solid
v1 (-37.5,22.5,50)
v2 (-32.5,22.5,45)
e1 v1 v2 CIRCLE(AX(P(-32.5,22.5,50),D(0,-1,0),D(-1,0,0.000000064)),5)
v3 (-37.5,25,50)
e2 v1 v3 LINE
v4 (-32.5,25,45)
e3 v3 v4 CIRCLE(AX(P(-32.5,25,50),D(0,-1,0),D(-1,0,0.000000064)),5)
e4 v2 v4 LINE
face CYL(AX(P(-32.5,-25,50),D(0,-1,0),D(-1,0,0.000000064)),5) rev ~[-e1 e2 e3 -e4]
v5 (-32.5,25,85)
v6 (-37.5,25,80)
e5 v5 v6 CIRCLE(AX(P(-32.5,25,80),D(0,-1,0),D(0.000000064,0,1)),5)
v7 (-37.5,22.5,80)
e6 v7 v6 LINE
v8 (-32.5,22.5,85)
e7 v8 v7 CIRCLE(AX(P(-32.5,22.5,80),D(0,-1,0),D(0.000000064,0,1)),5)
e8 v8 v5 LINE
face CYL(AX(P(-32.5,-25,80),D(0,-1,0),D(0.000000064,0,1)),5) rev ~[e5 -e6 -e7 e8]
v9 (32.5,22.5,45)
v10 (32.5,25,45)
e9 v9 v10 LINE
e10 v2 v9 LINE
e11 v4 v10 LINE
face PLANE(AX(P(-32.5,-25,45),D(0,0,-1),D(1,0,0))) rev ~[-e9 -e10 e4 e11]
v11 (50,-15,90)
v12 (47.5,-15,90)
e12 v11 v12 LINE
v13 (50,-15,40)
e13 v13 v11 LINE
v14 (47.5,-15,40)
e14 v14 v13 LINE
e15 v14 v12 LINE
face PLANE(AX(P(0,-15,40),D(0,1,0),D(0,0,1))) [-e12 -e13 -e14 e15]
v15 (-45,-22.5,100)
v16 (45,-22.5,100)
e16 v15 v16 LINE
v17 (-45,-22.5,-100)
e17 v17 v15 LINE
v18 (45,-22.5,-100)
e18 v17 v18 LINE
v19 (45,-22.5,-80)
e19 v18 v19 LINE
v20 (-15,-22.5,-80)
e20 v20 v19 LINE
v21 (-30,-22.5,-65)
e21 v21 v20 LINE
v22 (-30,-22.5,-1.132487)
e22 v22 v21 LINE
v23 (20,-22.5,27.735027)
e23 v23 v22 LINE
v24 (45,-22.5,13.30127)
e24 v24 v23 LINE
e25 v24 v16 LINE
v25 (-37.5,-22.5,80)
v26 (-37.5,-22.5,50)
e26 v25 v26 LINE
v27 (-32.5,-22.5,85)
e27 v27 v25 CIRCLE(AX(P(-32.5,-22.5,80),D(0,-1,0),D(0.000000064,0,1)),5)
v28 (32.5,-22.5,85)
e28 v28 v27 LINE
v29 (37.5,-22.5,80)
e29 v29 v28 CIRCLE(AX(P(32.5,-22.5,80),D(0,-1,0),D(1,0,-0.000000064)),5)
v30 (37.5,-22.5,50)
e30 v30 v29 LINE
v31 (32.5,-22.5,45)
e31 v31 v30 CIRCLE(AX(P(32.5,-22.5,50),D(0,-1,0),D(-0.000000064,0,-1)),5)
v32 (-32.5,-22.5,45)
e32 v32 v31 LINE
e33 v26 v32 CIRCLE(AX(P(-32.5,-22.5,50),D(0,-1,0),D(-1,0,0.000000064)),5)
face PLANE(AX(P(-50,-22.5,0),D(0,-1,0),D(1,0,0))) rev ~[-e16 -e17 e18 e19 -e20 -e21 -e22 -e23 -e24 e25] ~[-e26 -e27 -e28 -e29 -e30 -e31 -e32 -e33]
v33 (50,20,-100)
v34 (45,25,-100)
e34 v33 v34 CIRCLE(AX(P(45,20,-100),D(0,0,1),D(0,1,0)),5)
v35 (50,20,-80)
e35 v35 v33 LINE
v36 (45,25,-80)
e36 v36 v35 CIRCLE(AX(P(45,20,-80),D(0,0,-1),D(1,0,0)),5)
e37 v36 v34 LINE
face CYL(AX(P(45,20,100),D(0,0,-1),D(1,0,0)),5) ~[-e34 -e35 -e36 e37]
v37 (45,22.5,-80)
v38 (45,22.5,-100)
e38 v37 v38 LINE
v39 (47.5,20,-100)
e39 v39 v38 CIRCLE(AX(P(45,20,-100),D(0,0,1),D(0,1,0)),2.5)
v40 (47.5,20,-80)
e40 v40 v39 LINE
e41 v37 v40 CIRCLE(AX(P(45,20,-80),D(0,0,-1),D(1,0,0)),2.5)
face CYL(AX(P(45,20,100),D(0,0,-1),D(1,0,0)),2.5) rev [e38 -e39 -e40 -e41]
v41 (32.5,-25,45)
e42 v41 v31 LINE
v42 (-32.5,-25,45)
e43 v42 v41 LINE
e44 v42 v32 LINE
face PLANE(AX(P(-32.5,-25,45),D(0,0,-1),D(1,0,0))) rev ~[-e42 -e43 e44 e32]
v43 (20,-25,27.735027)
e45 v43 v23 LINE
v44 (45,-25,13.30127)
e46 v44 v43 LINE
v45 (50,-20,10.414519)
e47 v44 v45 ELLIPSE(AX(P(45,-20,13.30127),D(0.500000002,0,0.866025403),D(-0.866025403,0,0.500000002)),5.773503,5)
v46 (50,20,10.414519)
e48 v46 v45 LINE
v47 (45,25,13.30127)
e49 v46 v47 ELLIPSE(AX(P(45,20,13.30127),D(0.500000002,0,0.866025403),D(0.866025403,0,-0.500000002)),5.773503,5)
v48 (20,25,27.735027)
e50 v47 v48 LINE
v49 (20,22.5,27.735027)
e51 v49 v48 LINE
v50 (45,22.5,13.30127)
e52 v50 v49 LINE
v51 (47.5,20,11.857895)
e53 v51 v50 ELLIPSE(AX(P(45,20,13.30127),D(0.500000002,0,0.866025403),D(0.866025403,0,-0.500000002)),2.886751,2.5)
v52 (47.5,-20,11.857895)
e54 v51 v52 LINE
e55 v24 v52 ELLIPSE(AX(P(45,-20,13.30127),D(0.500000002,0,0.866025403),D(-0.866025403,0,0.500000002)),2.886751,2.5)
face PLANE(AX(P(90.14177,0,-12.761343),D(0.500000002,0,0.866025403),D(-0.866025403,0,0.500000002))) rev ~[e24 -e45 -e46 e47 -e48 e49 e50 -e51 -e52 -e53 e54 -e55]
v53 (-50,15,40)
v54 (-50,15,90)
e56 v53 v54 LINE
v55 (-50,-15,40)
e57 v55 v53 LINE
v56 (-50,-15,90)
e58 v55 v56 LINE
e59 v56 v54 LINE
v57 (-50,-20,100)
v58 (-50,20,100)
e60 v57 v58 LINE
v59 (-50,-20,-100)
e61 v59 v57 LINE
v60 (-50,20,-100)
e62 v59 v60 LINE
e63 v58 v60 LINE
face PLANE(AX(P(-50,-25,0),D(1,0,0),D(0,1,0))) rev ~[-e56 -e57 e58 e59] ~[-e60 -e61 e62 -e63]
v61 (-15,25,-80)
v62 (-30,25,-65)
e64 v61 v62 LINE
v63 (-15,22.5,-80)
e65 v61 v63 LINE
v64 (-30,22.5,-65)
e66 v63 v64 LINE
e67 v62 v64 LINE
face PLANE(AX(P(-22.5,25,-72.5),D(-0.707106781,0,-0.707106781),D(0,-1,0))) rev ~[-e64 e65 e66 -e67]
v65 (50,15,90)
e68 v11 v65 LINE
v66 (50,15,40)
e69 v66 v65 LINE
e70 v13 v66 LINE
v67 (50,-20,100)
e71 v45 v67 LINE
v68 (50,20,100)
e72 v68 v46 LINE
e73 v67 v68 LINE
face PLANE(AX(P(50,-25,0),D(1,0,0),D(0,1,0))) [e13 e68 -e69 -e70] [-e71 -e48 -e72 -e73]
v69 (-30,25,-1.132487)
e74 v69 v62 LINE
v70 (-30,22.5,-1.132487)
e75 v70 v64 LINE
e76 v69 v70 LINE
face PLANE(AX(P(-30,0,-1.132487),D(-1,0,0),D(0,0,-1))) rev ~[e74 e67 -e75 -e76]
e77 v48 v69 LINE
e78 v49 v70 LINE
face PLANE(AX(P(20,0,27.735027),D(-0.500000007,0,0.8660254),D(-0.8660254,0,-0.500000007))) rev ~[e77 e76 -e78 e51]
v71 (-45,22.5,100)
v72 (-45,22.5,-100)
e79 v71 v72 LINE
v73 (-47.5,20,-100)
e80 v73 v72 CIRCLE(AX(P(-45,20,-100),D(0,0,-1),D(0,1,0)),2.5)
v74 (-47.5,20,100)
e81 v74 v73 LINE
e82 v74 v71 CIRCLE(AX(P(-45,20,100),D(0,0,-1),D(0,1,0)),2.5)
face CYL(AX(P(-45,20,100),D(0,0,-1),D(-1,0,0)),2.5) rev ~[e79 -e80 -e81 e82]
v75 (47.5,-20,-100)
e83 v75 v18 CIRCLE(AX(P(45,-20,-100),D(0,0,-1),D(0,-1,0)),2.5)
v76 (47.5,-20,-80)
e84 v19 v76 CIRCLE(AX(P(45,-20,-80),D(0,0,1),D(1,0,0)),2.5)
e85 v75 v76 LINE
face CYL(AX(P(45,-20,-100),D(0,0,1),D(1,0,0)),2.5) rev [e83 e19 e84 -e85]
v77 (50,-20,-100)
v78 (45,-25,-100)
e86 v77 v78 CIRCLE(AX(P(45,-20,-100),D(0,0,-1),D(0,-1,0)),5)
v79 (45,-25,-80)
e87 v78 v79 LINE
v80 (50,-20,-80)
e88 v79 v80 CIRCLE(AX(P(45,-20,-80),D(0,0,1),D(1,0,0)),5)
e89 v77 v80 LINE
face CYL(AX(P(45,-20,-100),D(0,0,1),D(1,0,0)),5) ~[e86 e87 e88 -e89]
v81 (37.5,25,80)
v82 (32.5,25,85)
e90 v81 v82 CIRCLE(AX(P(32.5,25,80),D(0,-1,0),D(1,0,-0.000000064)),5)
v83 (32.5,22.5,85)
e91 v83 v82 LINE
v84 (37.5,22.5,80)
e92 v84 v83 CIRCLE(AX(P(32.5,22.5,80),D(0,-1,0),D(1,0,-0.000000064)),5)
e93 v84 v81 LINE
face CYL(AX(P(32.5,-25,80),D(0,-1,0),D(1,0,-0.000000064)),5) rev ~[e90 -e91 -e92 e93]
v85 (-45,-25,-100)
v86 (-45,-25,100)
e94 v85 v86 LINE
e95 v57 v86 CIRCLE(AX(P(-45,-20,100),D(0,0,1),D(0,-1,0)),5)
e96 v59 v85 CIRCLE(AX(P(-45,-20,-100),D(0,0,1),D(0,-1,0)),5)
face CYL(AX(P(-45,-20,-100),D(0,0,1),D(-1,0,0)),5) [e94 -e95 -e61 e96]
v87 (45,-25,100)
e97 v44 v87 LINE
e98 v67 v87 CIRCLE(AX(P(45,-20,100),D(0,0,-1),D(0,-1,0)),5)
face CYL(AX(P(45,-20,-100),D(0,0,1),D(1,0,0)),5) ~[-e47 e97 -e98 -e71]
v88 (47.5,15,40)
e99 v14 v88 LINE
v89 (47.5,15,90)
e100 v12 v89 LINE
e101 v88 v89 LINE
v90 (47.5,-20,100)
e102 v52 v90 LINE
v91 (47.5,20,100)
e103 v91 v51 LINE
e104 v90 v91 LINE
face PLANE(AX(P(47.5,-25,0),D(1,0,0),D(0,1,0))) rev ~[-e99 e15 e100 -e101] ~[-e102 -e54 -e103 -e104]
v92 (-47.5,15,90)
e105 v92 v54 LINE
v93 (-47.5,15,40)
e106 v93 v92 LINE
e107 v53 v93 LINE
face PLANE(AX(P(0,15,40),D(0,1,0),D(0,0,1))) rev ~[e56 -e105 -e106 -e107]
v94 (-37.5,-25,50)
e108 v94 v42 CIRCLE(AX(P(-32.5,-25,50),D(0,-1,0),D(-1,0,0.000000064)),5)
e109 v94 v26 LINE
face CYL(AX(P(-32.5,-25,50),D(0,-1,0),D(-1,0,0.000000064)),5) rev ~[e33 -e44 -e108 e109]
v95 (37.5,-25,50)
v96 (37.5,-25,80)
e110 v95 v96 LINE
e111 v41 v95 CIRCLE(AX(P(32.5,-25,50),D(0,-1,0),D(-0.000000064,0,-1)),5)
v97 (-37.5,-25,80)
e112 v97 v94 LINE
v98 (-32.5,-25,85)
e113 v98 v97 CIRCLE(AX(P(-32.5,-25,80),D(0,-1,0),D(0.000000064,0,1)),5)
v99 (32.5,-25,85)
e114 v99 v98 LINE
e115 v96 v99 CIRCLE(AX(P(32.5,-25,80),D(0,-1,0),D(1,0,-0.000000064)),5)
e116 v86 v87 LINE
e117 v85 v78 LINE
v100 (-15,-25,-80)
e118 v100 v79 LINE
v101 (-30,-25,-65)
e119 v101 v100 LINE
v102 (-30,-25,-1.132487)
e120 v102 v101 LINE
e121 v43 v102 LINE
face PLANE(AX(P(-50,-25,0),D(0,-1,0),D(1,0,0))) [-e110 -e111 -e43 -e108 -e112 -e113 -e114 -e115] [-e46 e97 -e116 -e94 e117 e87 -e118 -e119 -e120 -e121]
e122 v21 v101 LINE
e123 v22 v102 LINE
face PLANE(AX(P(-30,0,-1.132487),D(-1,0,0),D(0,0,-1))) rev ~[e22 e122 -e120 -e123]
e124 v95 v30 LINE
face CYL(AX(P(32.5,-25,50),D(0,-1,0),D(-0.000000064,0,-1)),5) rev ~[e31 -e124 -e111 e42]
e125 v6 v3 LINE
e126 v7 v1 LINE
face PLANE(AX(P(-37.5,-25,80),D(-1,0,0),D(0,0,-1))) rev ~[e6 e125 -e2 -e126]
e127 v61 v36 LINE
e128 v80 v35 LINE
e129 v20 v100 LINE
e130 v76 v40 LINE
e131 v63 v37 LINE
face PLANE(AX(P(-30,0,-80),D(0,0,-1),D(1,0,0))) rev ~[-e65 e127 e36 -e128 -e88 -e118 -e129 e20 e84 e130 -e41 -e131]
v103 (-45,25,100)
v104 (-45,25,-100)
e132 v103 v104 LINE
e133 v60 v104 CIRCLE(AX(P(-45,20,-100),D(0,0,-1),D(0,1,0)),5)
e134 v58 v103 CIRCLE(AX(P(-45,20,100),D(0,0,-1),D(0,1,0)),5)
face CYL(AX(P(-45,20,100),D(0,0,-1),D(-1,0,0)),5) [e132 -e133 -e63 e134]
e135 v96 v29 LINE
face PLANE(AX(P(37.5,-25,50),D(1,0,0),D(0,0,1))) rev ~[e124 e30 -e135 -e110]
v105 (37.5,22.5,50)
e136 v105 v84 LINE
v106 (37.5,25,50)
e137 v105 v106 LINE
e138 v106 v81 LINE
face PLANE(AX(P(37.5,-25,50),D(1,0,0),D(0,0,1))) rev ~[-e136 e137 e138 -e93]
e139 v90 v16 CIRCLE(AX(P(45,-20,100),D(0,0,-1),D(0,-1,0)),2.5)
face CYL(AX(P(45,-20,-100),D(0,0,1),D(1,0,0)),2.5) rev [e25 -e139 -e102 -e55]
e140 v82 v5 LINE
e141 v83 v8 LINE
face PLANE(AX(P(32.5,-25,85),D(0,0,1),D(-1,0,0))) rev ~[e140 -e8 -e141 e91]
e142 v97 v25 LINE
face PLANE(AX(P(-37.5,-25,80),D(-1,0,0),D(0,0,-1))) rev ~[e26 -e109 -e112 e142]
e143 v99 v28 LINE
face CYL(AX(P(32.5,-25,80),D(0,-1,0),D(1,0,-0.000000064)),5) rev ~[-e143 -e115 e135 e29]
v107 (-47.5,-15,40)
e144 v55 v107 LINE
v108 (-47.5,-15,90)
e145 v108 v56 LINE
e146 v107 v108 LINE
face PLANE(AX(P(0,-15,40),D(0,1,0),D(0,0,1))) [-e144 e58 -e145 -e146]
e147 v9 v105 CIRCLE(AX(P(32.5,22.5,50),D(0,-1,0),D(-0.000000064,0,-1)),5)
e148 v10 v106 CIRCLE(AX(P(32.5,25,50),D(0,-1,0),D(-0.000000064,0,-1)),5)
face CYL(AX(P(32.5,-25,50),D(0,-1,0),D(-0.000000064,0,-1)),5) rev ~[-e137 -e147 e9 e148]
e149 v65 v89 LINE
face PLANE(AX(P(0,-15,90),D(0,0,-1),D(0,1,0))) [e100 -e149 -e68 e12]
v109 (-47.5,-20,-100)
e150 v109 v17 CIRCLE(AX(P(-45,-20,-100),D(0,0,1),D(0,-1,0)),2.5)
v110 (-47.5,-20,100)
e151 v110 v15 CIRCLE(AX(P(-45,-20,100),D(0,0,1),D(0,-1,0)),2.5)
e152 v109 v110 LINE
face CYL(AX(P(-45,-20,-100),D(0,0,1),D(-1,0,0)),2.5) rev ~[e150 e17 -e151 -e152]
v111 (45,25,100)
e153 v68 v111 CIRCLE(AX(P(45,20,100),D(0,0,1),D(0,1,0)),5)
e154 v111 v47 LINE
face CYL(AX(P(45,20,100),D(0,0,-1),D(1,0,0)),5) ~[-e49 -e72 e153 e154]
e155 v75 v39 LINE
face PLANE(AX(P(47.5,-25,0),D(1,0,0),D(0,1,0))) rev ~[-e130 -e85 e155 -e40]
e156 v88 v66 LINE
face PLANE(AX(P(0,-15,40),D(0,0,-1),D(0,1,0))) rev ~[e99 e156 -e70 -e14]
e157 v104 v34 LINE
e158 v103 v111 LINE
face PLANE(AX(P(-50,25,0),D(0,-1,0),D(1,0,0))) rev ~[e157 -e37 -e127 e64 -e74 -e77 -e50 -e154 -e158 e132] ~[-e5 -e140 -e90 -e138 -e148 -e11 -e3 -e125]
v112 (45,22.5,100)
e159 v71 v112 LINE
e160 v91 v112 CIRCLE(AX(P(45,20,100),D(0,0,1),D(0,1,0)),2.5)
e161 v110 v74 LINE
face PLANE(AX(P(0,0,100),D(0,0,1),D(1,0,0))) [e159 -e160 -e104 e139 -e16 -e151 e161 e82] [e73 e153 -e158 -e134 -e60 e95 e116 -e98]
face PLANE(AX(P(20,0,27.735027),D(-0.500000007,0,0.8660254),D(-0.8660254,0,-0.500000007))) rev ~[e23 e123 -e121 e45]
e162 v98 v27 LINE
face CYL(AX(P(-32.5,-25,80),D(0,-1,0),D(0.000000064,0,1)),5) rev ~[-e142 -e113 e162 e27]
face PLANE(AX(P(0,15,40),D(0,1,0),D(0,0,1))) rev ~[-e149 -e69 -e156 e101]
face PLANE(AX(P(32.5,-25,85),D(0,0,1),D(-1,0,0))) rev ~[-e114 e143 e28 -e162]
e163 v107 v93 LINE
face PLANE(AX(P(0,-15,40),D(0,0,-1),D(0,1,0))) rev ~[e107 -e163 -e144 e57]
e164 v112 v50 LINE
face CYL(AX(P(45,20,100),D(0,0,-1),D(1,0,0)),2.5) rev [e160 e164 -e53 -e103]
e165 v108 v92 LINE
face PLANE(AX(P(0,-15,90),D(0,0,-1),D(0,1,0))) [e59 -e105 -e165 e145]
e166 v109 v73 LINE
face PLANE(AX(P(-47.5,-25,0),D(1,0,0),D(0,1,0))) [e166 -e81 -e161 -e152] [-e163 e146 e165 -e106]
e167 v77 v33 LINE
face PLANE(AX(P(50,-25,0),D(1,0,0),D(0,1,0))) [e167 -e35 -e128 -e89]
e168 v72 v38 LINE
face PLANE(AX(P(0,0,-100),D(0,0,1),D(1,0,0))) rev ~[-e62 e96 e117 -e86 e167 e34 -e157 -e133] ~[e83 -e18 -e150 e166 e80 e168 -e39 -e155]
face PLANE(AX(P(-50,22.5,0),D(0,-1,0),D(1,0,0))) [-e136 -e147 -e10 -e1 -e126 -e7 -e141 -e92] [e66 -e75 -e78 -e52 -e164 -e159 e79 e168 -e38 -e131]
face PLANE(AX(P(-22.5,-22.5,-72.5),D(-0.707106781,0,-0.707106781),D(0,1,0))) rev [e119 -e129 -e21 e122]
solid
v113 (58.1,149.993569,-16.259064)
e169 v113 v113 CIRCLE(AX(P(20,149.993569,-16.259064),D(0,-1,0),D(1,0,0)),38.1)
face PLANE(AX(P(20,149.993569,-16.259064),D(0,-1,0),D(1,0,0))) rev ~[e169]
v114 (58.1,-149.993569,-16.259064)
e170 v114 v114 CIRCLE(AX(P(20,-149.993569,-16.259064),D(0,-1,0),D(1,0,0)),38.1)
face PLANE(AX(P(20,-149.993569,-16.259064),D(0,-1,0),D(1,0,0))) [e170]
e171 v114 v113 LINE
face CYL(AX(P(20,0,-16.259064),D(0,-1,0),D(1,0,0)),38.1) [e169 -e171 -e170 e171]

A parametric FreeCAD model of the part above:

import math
import FreeCAD as App
import Part
import Sketcher

V = App.Vector
Q = App.Units.Quantity


def edges_at(feature, points):
    """Names of the edges that pass closest to the given points."""
    edges = feature.Shape.Edges
    near = lambda p: min(range(len(edges)), key=lambda i: edges[i].distToShape(Part.Vertex(*p))[0])
    return sorted({f"Edge{near(p) + 1}" for p in points})


def faces_at(feature, points):
    """Names of the faces that lie closest to the given points."""
    faces = feature.Shape.Faces
    near = lambda p: min(range(len(faces)), key=lambda i: faces[i].distToShape(Part.Vertex(*p))[0])
    return sorted({f"Face{near(p) + 1}" for p in points})

doc = App.newDocument("Part")
body = doc.addObject("PartDesign::Body", "Body")

sketch1 = body.newObject("Sketcher::SketchObject", "Sketch")
sketch1.AttachmentSupport = (doc.getObject("XY_Plane"), [""])
sketch1.MapMode = "FlatFace"
sketch1.addGeometry(Part.LineSegment(V(-50, 25, 0), V(-50, -25, 0)), False)
sketch1.addGeometry(Part.LineSegment(V(-50, -25, 0), V(50, -25, 0)), False)
sketch1.addGeometry(Part.LineSegment(V(50, -25, 0), V(50, 25, 0)), False)
sketch1.addGeometry(Part.LineSegment(V(50, 25, 0), V(-50, 25, 0)), False)
sketch1.addConstraint(Sketcher.Constraint("Coincident", 0, 2, 1, 1))
sketch1.addConstraint(Sketcher.Constraint("Coincident", 1, 2, 2, 1))
sketch1.addConstraint(Sketcher.Constraint("Coincident", 2, 2, 3, 1))
sketch1.addConstraint(Sketcher.Constraint("Coincident", 3, 2, 0, 1))
sketch1.addConstraint(Sketcher.Constraint("Vertical", 0))
sketch1.addConstraint(Sketcher.Constraint("Horizontal", 1))
sketch1.addConstraint(Sketcher.Constraint("Vertical", 2))
sketch1.addConstraint(Sketcher.Constraint("Horizontal", 3))
sketch1.addConstraint(Sketcher.Constraint("Symmetric", 0, 2, 2, 2, -1, 1))
sketch1.addConstraint(Sketcher.Constraint("DistanceX", 1, 1, 1, 2, 100.0))
sketch1.addConstraint(Sketcher.Constraint("DistanceY", 0, 2, 0, 1, 50.0))
pad1 = body.newObject("PartDesign::Pad", "Pad")
pad1.Profile = sketch1
pad1.Length = 200
pad1.Midplane = True
doc.recompute()

fillet = body.newObject("PartDesign::Fillet", "Fillet")
fillet.Base = (pad1, edges_at(pad1, [
    (-50, -25, 0),
    (-50, 25, 0),
    (50, -25, 0),
    (50, 25, 0),
]))
fillet.Radius = 5
doc.recompute()

thickness = body.newObject("PartDesign::Thickness", "Thickness")
thickness.Base = (fillet, faces_at(fillet, [(0, 0, 100), (0, 0, -100)]))
thickness.Value = 2.5
thickness.Reversed = True
thickness.Join = "Arc"

sketch2 = body.newObject("Sketcher::SketchObject", "Sketch001")
sketch2.AttachmentSupport = (doc.getObject("YZ_Plane"), [""])
sketch2.MapMode = "FlatFace"
sketch2.addGeometry(Part.LineSegment(V(-15, 90, 0), V(-15, 40, 0)), False)
sketch2.addGeometry(Part.LineSegment(V(-15, 40, 0), V(15, 40, 0)), False)
sketch2.addGeometry(Part.LineSegment(V(15, 40, 0), V(15, 90, 0)), False)
sketch2.addGeometry(Part.LineSegment(V(15, 90, 0), V(-15, 90, 0)), False)
sketch2.addConstraint(Sketcher.Constraint("Coincident", 0, 2, 1, 1))
sketch2.addConstraint(Sketcher.Constraint("Coincident", 1, 2, 2, 1))
sketch2.addConstraint(Sketcher.Constraint("Coincident", 2, 2, 3, 1))
sketch2.addConstraint(Sketcher.Constraint("Coincident", 3, 2, 0, 1))
sketch2.addConstraint(Sketcher.Constraint("Vertical", 0))
sketch2.addConstraint(Sketcher.Constraint("Horizontal", 1))
sketch2.addConstraint(Sketcher.Constraint("Vertical", 2))
sketch2.addConstraint(Sketcher.Constraint("Horizontal", 3))
sketch2.addConstraint(Sketcher.Constraint("DistanceX", 1, 1, 1, 2, 30.0))
sketch2.addConstraint(Sketcher.Constraint("DistanceY", 0, 2, 0, 1, 50.0))
sketch2.addConstraint(Sketcher.Constraint("DistanceX", 0, 2, -1, 1, 15.0))
sketch2.addConstraint(Sketcher.Constraint("DistanceY", -1, 1, 0, 2, 40.0))
pocket1 = body.newObject("PartDesign::Pocket", "Pocket")
pocket1.Profile = sketch2
pocket1.Length = 220
pocket1.Midplane = True

sketch3 = body.newObject("Sketcher::SketchObject", "Sketch002")
sketch3.AttachmentSupport = (doc.getObject("XZ_Plane"), [""])
sketch3.MapMode = "FlatFace"
sketch3.addGeometry(Part.LineSegment(V(20, 28, 0), V(-30, -1, 0)), False)
sketch3.addGeometry(Part.LineSegment(V(-30, -1, 0), V(-30, -80, 0)), False)
sketch3.addGeometry(Part.LineSegment(V(-30, -80, 0), V(90, -80, 0)), False)
sketch3.addGeometry(Part.LineSegment(V(90, -80, 0), V(90, -13, 0)), False)
sketch3.addGeometry(Part.LineSegment(V(90, -13, 0), V(20, 28, 0)), False)
sketch3.addConstraint(Sketcher.Constraint("Coincident", 0, 2, 1, 1))
sketch3.addConstraint(Sketcher.Constraint("Coincident", 1, 2, 2, 1))
sketch3.addConstraint(Sketcher.Constraint("Coincident", 2, 2, 3, 1))
sketch3.addConstraint(Sketcher.Constraint("Coincident", 3, 2, 4, 1))
sketch3.addConstraint(Sketcher.Constraint("Coincident", 4, 2, 0, 1))
sketch3.addConstraint(Sketcher.Constraint("Vertical", 1))
sketch3.addConstraint(Sketcher.Constraint("Horizontal", 2))
sketch3.addConstraint(Sketcher.Constraint("Vertical", 3))
sketch3.addConstraint(Sketcher.Constraint("Angle", 0, Q("-150 deg")))
sketch3.addConstraint(Sketcher.Constraint("Angle", 4, Q("150 deg")))
sketch3.addConstraint(Sketcher.Constraint("DistanceX", 0, 2, -1, 1, 30.0))
sketch3.addConstraint(Sketcher.Constraint("DistanceY", 1, 2, -1, 1, 80.0))
sketch3.addConstraint(Sketcher.Constraint("DistanceX", -1, 1, 4, 2, 20.0))
sketch3.addConstraint(Sketcher.Constraint("DistanceX", 2, 1, 2, 2, 120.14177))
sketch3.addConstraint(Sketcher.Constraint("DistanceY", 1, 2, 1, 1, 78.867513))
pocket2 = body.newObject("PartDesign::Pocket", "Pocket001")
pocket2.Profile = sketch3
pocket2.Length = 86.60339
pocket2.Midplane = True
doc.recompute()

chamfer = body.newObject("PartDesign::Chamfer", "Chamfer")
chamfer.Base = (pocket2, edges_at(pocket2, [(-30, 23.75, -80), (-30, -23.75, -80)]))
chamfer.Size = 15

sketch4 = body.newObject("Sketcher::SketchObject", "Sketch003")
sketch4.AttachmentSupport = (doc.getObject("XZ_Plane"), [""])
sketch4.MapMode = "FlatFace"
sketch4.AttachmentOffset = App.Placement(V(0, 0, 25), App.Rotation())
sketch4.addGeometry(Part.ArcOfCircle(Part.Circle(V(32.5, 80, 0), V(0, 0, 1), 5), math.radians(0), math.radians(90)), False)
sketch4.addGeometry(Part.LineSegment(V(32.5, 85, 0), V(-32.5, 85, 0)), False)
sketch4.addGeometry(Part.ArcOfCircle(Part.Circle(V(-32.5, 80, 0), V(0, 0, 1), 5), math.radians(90), math.radians(180)), False)
sketch4.addGeometry(Part.LineSegment(V(-37.5, 80, 0), V(-37.5, 50, 0)), False)
sketch4.addGeometry(Part.ArcOfCircle(Part.Circle(V(-32.5, 50, 0), V(0, 0, 1), 5), math.radians(180), math.radians(270)), False)
sketch4.addGeometry(Part.LineSegment(V(-32.5, 45, 0), V(32.5, 45, 0)), False)
sketch4.addGeometry(Part.ArcOfCircle(Part.Circle(V(32.5, 50, 0), V(0, 0, 1), 5), math.radians(-90), math.radians(0)), False)
sketch4.addGeometry(Part.LineSegment(V(37.5, 50, 0), V(37.5, 80, 0)), False)
sketch4.addConstraint(Sketcher.Constraint("Tangent", 0, 2, 1, 1))
sketch4.addConstraint(Sketcher.Constraint("Tangent", 1, 2, 2, 1))
sketch4.addConstraint(Sketcher.Constraint("Tangent", 2, 2, 3, 1))
sketch4.addConstraint(Sketcher.Constraint("Tangent", 3, 2, 4, 1))
sketch4.addConstraint(Sketcher.Constraint("Tangent", 4, 2, 5, 1))
sketch4.addConstraint(Sketcher.Constraint("Tangent", 5, 2, 6, 1))
sketch4.addConstraint(Sketcher.Constraint("Tangent", 6, 2, 7, 1))
sketch4.addConstraint(Sketcher.Constraint("Tangent", 7, 2, 0, 1))
sketch4.addConstraint(Sketcher.Constraint("Horizontal", 1))
sketch4.addConstraint(Sketcher.Constraint("Vertical", 3))
sketch4.addConstraint(Sketcher.Constraint("Horizontal", 5))
sketch4.addConstraint(Sketcher.Constraint("Vertical", 7))
sketch4.addConstraint(Sketcher.Constraint("Equal", 0, 2))
sketch4.addConstraint(Sketcher.Constraint("Equal", 2, 4))
sketch4.addConstraint(Sketcher.Constraint("Equal", 4, 6))
sketch4.addConstraint(Sketcher.Constraint("Radius", 0, 5.0))
sketch4.addConstraint(Sketcher.Constraint("DistanceX", 1, 2, 1, 1, 65.0))
sketch4.addConstraint(Sketcher.Constraint("DistanceY", 3, 2, 3, 1, 30.0))
sketch4.addConstraint(Sketcher.Constraint("DistanceY", -1, 1, 0, 3, 80.0))
sketch4.addConstraint(Sketcher.Constraint("DistanceX", -1, 1, 0, 3, 32.5))
pocket3 = body.newObject("PartDesign::Pocket", "Pocket002")
pocket3.Profile = sketch4
pocket3.Length = 102.455856
body2 = doc.addObject("PartDesign::Body", "Body001")

sketch5 = body2.newObject("Sketcher::SketchObject", "Sketch004")
sketch5.AttachmentSupport = (doc.getObject("XZ_Plane001"), [""])
sketch5.MapMode = "FlatFace"
sketch5.addGeometry(Part.Circle(V(20, -16, 0), V(0, 0, 1), 38), False)
sketch5.addConstraint(Sketcher.Constraint("Diameter", 0, 76.2))
sketch5.addConstraint(Sketcher.Constraint("DistanceX", -1, 1, 0, 3, 20.0))
sketch5.addConstraint(Sketcher.Constraint("DistanceY", 0, 3, -1, 1, 16.259064))
pad2 = body2.newObject("PartDesign::Pad", "Pad001")
pad2.Profile = sketch5
pad2.Length = 299.987138
pad2.Midplane = True

sketch6 = body2.newObject("Sketcher::SketchObject", "Sketch005")
sketch6.AttachmentSupport = (doc.getObject("XZ_Plane001"), [""])
sketch6.MapMode = "FlatFace"
sketch6.AttachmentOffset = App.Placement(V(0, 0, 149.993569), App.Rotation())
sketch6.addGeometry(Part.Circle(V(20, -16, 0), V(0, 0, 1), 38), False)
sketch6.addConstraint(Sketcher.Constraint("Diameter", 0, 76.2))
sketch6.addConstraint(Sketcher.Constraint("DistanceX", -1, 1, 0, 3, 20.0))
sketch6.addConstraint(Sketcher.Constraint("DistanceY", 0, 3, -1, 1, 16.259064))
pad3 = body2.newObject("PartDesign::Pad", "Pad002")
pad3.Profile = sketch6
pad3.Length = 40
pad3.Reversed = True

doc.recompute()
